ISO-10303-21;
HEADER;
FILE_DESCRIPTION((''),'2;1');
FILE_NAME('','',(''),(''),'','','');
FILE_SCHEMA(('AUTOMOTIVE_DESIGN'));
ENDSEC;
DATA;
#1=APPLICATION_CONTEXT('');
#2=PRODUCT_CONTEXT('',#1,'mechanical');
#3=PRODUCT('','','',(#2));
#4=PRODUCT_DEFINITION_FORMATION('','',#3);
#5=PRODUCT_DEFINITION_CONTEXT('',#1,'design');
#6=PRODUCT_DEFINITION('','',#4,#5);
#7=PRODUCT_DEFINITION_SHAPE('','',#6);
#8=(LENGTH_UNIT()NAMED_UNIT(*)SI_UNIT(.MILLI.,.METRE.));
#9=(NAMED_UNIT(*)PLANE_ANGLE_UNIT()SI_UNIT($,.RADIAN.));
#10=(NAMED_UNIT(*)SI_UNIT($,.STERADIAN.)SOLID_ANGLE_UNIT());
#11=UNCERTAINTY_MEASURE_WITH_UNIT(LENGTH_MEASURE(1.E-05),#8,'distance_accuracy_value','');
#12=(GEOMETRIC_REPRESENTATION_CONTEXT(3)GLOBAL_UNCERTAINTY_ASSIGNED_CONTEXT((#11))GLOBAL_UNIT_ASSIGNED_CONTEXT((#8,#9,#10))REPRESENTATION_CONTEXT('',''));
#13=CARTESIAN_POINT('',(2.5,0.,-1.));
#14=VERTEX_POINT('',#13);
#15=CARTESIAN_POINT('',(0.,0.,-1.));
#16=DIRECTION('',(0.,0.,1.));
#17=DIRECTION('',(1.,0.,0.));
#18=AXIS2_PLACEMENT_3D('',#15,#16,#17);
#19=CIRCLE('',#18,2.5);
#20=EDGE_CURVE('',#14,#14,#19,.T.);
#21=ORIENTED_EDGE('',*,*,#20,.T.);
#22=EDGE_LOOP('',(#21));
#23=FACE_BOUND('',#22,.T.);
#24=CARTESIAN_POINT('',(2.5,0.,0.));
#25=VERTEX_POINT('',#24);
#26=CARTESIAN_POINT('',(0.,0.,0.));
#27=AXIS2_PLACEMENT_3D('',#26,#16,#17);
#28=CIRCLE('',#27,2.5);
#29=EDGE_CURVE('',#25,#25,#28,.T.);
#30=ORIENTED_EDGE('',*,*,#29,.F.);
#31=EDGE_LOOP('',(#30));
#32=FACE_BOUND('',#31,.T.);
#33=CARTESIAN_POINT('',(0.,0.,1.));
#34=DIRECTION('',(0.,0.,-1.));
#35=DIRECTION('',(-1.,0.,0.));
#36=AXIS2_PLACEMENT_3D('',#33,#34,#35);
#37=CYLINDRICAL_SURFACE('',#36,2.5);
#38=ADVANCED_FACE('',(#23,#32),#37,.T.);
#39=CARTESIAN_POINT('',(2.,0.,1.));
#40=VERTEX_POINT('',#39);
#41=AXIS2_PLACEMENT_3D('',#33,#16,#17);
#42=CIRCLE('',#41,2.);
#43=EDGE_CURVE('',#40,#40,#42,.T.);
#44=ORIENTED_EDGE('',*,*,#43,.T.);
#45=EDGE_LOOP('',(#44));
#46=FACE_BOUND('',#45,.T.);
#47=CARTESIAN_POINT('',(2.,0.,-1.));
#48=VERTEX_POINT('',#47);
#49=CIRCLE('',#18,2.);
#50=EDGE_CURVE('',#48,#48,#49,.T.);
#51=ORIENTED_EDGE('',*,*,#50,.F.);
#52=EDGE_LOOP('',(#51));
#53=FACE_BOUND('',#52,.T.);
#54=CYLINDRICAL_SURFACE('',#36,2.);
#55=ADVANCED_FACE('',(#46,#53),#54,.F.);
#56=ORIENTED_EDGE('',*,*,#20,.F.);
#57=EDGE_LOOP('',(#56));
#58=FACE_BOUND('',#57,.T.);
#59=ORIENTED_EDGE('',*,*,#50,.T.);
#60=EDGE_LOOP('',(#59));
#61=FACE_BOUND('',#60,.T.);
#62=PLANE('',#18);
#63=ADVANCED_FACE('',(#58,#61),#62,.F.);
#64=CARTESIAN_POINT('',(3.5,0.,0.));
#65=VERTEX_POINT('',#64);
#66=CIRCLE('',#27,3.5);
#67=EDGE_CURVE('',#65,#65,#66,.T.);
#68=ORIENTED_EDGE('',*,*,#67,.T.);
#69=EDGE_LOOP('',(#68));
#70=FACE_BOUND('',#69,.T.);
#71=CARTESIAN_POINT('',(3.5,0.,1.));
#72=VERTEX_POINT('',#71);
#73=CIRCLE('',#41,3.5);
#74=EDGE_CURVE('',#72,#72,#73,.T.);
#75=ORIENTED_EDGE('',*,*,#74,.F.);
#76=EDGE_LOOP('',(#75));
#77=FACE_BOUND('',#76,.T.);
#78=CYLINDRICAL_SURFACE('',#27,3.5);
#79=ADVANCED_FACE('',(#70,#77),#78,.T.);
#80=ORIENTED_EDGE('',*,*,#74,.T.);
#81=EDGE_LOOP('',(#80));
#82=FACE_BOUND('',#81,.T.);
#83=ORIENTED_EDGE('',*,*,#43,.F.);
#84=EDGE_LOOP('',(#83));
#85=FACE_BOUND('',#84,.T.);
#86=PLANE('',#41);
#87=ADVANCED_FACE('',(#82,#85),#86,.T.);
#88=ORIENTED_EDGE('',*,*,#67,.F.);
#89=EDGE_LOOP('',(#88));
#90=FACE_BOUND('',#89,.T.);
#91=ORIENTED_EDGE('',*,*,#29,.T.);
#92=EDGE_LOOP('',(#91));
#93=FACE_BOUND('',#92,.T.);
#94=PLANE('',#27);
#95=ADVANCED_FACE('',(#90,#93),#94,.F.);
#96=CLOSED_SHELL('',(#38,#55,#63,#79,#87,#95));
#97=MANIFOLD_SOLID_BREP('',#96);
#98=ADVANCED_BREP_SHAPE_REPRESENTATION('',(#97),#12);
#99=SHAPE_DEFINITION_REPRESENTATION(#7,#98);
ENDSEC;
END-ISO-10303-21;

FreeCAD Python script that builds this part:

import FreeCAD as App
import Part
import Sketcher
Q = App.Units.Quantity

doc = App.newDocument("Part")
body = doc.addObject("PartDesign::Body", "Body")

# Sketch on XY plane
sketch1 = body.newObject("Sketcher::SketchObject", "Sketch")
sketch1.AttachmentSupport = (doc.getObject("XY_Plane"), [""])
sketch1.MapMode = "FlatFace"
sketch1.addGeometry(Part.Circle(App.Vector(0, 0, 0), App.Vector(0, 0, 1), 2.5), False)
sketch1.addGeometry(Part.Circle(App.Vector(0, 0, 0), App.Vector(0, 0, 1), 2), False)
sketch1.addConstraint(Sketcher.Constraint("Coincident", 0, 3, -1, 1))
sketch1.addConstraint(Sketcher.Constraint("Coincident", 1, 3, -1, 1))
sketch1.addConstraint(Sketcher.Constraint("Diameter", 0, Q("5 mm")))
sketch1.addConstraint(Sketcher.Constraint("Diameter", 1, Q("4 mm")))
pad1 = body.newObject("PartDesign::Pad", "Pad")
pad1.Profile = sketch1
pad1.Length = 2
pad1.Midplane = True

# Sketch on XY plane
sketch2 = body.newObject("Sketcher::SketchObject", "Sketch001")
sketch2.AttachmentSupport = (doc.getObject("XY_Plane"), [""])
sketch2.MapMode = "FlatFace"
sketch2.AttachmentOffset = App.Placement(App.Vector(0, 0, 1), App.Rotation())
sketch2.addGeometry(Part.Circle(App.Vector(0, 0, 0), App.Vector(0, 0, 1), 3.5), False)
sketch2.addGeometry(Part.Circle(App.Vector(0, 0, 0), App.Vector(0, 0, 1), 2), False)
sketch2.addConstraint(Sketcher.Constraint("Coincident", 0, 3, -1, 1))
sketch2.addConstraint(Sketcher.Constraint("Coincident", 1, 3, -1, 1))
sketch2.addConstraint(Sketcher.Constraint("Diameter", 0, Q("7 mm")))
sketch2.addConstraint(Sketcher.Constraint("Diameter", 1, Q("4 mm")))
pad2 = body.newObject("PartDesign::Pad", "Pad001")
pad2.Profile = sketch2
pad2.Length = 1
pad2.Reversed = True

doc.recompute()
